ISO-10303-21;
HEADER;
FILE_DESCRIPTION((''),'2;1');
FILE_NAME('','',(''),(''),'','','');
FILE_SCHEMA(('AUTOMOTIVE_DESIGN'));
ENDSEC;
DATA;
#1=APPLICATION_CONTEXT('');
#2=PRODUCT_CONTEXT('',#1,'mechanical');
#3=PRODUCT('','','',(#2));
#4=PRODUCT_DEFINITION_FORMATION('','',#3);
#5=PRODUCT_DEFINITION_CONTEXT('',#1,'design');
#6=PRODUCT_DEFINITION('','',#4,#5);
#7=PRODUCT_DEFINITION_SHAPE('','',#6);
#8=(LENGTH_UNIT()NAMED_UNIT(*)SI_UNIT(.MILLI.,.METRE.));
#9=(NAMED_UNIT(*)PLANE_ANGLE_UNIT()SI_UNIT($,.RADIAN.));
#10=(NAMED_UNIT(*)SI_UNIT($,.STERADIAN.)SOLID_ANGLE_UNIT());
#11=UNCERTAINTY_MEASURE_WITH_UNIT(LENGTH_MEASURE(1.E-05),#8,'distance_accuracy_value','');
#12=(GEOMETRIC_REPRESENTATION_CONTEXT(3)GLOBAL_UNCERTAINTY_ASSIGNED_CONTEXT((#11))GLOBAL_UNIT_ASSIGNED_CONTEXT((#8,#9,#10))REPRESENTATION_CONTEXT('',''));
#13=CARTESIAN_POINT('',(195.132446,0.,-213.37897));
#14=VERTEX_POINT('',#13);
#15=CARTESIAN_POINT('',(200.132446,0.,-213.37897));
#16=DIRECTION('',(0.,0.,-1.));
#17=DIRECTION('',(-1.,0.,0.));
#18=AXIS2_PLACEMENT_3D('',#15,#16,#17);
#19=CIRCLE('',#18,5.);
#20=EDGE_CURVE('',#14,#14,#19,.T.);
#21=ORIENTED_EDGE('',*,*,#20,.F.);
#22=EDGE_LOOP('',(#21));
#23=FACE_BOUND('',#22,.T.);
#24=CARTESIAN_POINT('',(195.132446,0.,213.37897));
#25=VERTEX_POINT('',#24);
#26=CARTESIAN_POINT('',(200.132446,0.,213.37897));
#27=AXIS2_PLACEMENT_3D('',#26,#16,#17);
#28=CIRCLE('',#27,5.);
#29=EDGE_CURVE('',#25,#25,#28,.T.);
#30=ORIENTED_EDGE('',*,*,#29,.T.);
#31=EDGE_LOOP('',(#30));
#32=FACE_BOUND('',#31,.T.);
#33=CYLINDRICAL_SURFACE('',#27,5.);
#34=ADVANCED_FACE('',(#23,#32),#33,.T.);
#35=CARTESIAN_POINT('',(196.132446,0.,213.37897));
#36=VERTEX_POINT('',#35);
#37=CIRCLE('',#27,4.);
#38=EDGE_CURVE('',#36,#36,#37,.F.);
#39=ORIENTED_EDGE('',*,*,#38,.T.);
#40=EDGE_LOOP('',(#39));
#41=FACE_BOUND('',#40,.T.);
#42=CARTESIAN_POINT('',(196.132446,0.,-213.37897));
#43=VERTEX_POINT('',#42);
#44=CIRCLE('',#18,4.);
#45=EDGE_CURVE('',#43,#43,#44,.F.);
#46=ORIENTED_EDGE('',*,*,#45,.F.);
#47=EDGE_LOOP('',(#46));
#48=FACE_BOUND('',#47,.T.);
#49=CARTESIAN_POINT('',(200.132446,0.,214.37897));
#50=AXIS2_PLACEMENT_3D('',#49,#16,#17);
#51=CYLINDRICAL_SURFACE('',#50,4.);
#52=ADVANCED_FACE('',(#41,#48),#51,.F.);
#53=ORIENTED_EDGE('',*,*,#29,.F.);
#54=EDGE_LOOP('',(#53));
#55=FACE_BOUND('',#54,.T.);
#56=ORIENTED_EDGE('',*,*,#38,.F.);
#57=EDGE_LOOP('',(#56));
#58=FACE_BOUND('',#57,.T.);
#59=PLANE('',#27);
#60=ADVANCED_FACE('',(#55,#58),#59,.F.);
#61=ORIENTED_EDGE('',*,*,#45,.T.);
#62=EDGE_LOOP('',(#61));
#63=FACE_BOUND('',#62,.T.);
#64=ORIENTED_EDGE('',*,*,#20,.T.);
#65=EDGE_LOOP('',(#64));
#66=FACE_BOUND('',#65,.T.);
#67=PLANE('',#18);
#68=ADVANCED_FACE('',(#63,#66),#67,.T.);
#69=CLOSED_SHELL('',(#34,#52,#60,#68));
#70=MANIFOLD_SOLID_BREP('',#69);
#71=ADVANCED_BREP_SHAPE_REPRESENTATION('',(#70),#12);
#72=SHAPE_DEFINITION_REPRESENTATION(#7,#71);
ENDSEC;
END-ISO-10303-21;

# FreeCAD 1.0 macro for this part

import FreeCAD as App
import Part
import Sketcher
from FreeCAD import Vector
Q = App.Units.Quantity

doc = App.newDocument("Part")
params = doc.addObject("Spreadsheet::Sheet", "Params")
for row, (alias, value) in enumerate([
    ("sketch1_diameter", "10 mm"),
    ("sketch3_diameter", "8 mm"),
], start=1):
    params.set(f"A{row}", alias)
    params.set(f"B{row}", "=" + value)
    params.setAlias(f"B{row}", alias)

body = doc.addObject("PartDesign::Body", "Body")

sketch1 = body.newObject("Sketcher::SketchObject", "Sketch")
sketch1.AttachmentSupport = (doc.getObject("XY_Plane"), [""])
sketch1.MapMode = "FlatFace"
sketch1.AttachmentOffset = App.Placement(Vector(0, 0, 213.37897), App.Rotation())
sketch1.addGeometry(Part.Circle(Vector(200, 0, 0), Vector(0, 0, 1), 5), False)
sketch1.addConstraint(Sketcher.Constraint("PointOnObject", 0, 3, -1))
sketch1.addConstraint(Sketcher.Constraint("Diameter", 0, Q("10 mm")))
sketch1.addConstraint(Sketcher.Constraint("DistanceX", -1, 1, 0, 3, Q("200.132446 mm")))
sketch1.setExpression("Constraints[1]", "Params.sketch1_diameter")

sketch2 = body.newObject("Sketcher::SketchObject", "Sketch001")
sketch2.AttachmentSupport = (doc.getObject("XZ_Plane"), [""])
sketch2.MapMode = "FlatFace"
sketch2.addGeometry(Part.LineSegment(Vector(200, 213, 0), Vector(200, -213, 0)), False)
sketch2.addConstraint(Sketcher.Constraint("Vertical", 0))
sketch2.addConstraint(Sketcher.Constraint("DistanceY", 0, 2, 0, 1, Q("426.757939 mm")))
sketch2.addConstraint(Sketcher.Constraint("DistanceY", -1, 1, 0, 1, Q("213.37897 mm")))
sketch2.addConstraint(Sketcher.Constraint("DistanceX", -1, 1, 0, 1, Q("200.132446 mm")))
doc.recompute()

additivepipe = body.newObject("PartDesign::AdditivePipe", "AdditivePipe")
additivepipe.Profile = sketch1
additivepipe.Spine = (sketch2, ["Edge1"])

sketch3 = body.newObject("Sketcher::SketchObject", "Sketch002")
sketch3.AttachmentSupport = (doc.getObject("XY_Plane"), [""])
sketch3.MapMode = "FlatFace"
sketch3.AttachmentOffset = App.Placement(Vector(0, 0, 213.37897), App.Rotation())
sketch3.addGeometry(Part.Circle(Vector(200.1, 0, 0), Vector(0, 0, 1), 4), False)
sketch3.addConstraint(Sketcher.Constraint("PointOnObject", 0, 3, -1))
sketch3.addConstraint(Sketcher.Constraint("Diameter", 0, Q("8 mm")))
sketch3.addConstraint(Sketcher.Constraint("DistanceX", -1, 1, 0, 3, Q("200.132446 mm")))
sketch3.setExpression("Constraints[1]", "Params.sketch3_diameter")

sketch4 = body.newObject("Sketcher::SketchObject", "Sketch003")
sketch4.AttachmentSupport = (doc.getObject("XZ_Plane"), [""])
sketch4.MapMode = "FlatFace"
sketch4.addGeometry(Part.LineSegment(Vector(200, 213, 0), Vector(200, -213, 0)), False)
sketch4.addConstraint(Sketcher.Constraint("Vertical", 0))
sketch4.addConstraint(Sketcher.Constraint("DistanceY", 0, 2, 0, 1, Q("426.757939 mm")))
sketch4.addConstraint(Sketcher.Constraint("DistanceY", -1, 1, 0, 1, Q("213.37897 mm")))
sketch4.addConstraint(Sketcher.Constraint("DistanceX", -1, 1, 0, 1, Q("200.132446 mm")))
doc.recompute()

subtractivepipe = body.newObject("PartDesign::SubtractivePipe", "SubtractivePipe")
subtractivepipe.Profile = sketch3
subtractivepipe.Spine = (sketch4, ["Edge1"])

doc.recompute()
